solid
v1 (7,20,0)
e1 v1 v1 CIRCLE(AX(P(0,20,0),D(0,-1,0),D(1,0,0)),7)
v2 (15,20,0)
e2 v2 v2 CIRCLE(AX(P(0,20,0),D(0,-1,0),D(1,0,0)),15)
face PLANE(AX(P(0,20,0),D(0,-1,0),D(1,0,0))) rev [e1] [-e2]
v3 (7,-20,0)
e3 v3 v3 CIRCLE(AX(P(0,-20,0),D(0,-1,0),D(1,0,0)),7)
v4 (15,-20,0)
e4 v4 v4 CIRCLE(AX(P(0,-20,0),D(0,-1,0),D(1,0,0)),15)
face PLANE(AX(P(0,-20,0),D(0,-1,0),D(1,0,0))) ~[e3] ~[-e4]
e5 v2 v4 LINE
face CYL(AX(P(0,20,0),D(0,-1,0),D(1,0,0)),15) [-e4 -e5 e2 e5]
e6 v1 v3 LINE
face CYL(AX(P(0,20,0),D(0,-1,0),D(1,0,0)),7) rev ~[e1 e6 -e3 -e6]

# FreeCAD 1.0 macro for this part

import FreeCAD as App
import Part
import Sketcher
Q = App.Units.Quantity

doc = App.newDocument("Part")
params = doc.addObject("Spreadsheet::Sheet", "Params")
for row, (alias, value) in enumerate([
    ("sketch1_height", "40 mm"),
    ("sketch1_width", "8 mm"),
    ("revolution_angle", "360 deg"),
], start=1):
    params.set(f"A{row}", alias)
    params.set(f"B{row}", "=" + value)
    params.setAlias(f"B{row}", alias)

body = doc.addObject("PartDesign::Body", "Body")

# Sketch on XY plane
sketch1 = body.newObject("Sketcher::SketchObject", "Sketch")
sketch1.AttachmentSupport = (doc.getObject("XY_Plane"), [""])
sketch1.MapMode = "FlatFace"
sketch1.addGeometry([
    Part.LineSegment(App.Vector(15, -20, 0), App.Vector(15, 20, 0)),
    Part.LineSegment(App.Vector(15, 20, 0), App.Vector(7, 20, 0)),
    Part.LineSegment(App.Vector(7, 20, 0), App.Vector(7, -20, 0)),
    Part.LineSegment(App.Vector(7, -20, 0), App.Vector(15, -20, 0)),
], False)
sketch1.addConstraint([
    Sketcher.Constraint("Coincident", 0, 2, 1, 1),
    Sketcher.Constraint("Coincident", 1, 2, 2, 1),
    Sketcher.Constraint("Coincident", 2, 2, 3, 1),
    Sketcher.Constraint("Coincident", 3, 2, 0, 1),
    Sketcher.Constraint("Vertical", 0),
    Sketcher.Constraint("Horizontal", 1),
    Sketcher.Constraint("Vertical", 2),
    Sketcher.Constraint("Horizontal", 3),
    Sketcher.Constraint("DistanceY", 0, 1, 0, 2, Q("40 mm")),
    Sketcher.Constraint("DistanceX", 1, 2, 1, 1, Q("8 mm")),
    Sketcher.Constraint("DistanceX", -1, 1, 0, 2, Q("15 mm")),
    Sketcher.Constraint("DistanceY", -1, 1, 0, 2, Q("20 mm")),
])
sketch1.setExpression("Constraints[8]", "Params.sketch1_height")
sketch1.setExpression("Constraints[9]", "Params.sketch1_width")
revolution = body.newObject("PartDesign::Revolution", "Revolution")
revolution.Profile = sketch1
revolution.ReferenceAxis = (sketch1, ["V_Axis"])
revolution.setExpression("Angle", "Params.revolution_angle")

doc.recompute()
